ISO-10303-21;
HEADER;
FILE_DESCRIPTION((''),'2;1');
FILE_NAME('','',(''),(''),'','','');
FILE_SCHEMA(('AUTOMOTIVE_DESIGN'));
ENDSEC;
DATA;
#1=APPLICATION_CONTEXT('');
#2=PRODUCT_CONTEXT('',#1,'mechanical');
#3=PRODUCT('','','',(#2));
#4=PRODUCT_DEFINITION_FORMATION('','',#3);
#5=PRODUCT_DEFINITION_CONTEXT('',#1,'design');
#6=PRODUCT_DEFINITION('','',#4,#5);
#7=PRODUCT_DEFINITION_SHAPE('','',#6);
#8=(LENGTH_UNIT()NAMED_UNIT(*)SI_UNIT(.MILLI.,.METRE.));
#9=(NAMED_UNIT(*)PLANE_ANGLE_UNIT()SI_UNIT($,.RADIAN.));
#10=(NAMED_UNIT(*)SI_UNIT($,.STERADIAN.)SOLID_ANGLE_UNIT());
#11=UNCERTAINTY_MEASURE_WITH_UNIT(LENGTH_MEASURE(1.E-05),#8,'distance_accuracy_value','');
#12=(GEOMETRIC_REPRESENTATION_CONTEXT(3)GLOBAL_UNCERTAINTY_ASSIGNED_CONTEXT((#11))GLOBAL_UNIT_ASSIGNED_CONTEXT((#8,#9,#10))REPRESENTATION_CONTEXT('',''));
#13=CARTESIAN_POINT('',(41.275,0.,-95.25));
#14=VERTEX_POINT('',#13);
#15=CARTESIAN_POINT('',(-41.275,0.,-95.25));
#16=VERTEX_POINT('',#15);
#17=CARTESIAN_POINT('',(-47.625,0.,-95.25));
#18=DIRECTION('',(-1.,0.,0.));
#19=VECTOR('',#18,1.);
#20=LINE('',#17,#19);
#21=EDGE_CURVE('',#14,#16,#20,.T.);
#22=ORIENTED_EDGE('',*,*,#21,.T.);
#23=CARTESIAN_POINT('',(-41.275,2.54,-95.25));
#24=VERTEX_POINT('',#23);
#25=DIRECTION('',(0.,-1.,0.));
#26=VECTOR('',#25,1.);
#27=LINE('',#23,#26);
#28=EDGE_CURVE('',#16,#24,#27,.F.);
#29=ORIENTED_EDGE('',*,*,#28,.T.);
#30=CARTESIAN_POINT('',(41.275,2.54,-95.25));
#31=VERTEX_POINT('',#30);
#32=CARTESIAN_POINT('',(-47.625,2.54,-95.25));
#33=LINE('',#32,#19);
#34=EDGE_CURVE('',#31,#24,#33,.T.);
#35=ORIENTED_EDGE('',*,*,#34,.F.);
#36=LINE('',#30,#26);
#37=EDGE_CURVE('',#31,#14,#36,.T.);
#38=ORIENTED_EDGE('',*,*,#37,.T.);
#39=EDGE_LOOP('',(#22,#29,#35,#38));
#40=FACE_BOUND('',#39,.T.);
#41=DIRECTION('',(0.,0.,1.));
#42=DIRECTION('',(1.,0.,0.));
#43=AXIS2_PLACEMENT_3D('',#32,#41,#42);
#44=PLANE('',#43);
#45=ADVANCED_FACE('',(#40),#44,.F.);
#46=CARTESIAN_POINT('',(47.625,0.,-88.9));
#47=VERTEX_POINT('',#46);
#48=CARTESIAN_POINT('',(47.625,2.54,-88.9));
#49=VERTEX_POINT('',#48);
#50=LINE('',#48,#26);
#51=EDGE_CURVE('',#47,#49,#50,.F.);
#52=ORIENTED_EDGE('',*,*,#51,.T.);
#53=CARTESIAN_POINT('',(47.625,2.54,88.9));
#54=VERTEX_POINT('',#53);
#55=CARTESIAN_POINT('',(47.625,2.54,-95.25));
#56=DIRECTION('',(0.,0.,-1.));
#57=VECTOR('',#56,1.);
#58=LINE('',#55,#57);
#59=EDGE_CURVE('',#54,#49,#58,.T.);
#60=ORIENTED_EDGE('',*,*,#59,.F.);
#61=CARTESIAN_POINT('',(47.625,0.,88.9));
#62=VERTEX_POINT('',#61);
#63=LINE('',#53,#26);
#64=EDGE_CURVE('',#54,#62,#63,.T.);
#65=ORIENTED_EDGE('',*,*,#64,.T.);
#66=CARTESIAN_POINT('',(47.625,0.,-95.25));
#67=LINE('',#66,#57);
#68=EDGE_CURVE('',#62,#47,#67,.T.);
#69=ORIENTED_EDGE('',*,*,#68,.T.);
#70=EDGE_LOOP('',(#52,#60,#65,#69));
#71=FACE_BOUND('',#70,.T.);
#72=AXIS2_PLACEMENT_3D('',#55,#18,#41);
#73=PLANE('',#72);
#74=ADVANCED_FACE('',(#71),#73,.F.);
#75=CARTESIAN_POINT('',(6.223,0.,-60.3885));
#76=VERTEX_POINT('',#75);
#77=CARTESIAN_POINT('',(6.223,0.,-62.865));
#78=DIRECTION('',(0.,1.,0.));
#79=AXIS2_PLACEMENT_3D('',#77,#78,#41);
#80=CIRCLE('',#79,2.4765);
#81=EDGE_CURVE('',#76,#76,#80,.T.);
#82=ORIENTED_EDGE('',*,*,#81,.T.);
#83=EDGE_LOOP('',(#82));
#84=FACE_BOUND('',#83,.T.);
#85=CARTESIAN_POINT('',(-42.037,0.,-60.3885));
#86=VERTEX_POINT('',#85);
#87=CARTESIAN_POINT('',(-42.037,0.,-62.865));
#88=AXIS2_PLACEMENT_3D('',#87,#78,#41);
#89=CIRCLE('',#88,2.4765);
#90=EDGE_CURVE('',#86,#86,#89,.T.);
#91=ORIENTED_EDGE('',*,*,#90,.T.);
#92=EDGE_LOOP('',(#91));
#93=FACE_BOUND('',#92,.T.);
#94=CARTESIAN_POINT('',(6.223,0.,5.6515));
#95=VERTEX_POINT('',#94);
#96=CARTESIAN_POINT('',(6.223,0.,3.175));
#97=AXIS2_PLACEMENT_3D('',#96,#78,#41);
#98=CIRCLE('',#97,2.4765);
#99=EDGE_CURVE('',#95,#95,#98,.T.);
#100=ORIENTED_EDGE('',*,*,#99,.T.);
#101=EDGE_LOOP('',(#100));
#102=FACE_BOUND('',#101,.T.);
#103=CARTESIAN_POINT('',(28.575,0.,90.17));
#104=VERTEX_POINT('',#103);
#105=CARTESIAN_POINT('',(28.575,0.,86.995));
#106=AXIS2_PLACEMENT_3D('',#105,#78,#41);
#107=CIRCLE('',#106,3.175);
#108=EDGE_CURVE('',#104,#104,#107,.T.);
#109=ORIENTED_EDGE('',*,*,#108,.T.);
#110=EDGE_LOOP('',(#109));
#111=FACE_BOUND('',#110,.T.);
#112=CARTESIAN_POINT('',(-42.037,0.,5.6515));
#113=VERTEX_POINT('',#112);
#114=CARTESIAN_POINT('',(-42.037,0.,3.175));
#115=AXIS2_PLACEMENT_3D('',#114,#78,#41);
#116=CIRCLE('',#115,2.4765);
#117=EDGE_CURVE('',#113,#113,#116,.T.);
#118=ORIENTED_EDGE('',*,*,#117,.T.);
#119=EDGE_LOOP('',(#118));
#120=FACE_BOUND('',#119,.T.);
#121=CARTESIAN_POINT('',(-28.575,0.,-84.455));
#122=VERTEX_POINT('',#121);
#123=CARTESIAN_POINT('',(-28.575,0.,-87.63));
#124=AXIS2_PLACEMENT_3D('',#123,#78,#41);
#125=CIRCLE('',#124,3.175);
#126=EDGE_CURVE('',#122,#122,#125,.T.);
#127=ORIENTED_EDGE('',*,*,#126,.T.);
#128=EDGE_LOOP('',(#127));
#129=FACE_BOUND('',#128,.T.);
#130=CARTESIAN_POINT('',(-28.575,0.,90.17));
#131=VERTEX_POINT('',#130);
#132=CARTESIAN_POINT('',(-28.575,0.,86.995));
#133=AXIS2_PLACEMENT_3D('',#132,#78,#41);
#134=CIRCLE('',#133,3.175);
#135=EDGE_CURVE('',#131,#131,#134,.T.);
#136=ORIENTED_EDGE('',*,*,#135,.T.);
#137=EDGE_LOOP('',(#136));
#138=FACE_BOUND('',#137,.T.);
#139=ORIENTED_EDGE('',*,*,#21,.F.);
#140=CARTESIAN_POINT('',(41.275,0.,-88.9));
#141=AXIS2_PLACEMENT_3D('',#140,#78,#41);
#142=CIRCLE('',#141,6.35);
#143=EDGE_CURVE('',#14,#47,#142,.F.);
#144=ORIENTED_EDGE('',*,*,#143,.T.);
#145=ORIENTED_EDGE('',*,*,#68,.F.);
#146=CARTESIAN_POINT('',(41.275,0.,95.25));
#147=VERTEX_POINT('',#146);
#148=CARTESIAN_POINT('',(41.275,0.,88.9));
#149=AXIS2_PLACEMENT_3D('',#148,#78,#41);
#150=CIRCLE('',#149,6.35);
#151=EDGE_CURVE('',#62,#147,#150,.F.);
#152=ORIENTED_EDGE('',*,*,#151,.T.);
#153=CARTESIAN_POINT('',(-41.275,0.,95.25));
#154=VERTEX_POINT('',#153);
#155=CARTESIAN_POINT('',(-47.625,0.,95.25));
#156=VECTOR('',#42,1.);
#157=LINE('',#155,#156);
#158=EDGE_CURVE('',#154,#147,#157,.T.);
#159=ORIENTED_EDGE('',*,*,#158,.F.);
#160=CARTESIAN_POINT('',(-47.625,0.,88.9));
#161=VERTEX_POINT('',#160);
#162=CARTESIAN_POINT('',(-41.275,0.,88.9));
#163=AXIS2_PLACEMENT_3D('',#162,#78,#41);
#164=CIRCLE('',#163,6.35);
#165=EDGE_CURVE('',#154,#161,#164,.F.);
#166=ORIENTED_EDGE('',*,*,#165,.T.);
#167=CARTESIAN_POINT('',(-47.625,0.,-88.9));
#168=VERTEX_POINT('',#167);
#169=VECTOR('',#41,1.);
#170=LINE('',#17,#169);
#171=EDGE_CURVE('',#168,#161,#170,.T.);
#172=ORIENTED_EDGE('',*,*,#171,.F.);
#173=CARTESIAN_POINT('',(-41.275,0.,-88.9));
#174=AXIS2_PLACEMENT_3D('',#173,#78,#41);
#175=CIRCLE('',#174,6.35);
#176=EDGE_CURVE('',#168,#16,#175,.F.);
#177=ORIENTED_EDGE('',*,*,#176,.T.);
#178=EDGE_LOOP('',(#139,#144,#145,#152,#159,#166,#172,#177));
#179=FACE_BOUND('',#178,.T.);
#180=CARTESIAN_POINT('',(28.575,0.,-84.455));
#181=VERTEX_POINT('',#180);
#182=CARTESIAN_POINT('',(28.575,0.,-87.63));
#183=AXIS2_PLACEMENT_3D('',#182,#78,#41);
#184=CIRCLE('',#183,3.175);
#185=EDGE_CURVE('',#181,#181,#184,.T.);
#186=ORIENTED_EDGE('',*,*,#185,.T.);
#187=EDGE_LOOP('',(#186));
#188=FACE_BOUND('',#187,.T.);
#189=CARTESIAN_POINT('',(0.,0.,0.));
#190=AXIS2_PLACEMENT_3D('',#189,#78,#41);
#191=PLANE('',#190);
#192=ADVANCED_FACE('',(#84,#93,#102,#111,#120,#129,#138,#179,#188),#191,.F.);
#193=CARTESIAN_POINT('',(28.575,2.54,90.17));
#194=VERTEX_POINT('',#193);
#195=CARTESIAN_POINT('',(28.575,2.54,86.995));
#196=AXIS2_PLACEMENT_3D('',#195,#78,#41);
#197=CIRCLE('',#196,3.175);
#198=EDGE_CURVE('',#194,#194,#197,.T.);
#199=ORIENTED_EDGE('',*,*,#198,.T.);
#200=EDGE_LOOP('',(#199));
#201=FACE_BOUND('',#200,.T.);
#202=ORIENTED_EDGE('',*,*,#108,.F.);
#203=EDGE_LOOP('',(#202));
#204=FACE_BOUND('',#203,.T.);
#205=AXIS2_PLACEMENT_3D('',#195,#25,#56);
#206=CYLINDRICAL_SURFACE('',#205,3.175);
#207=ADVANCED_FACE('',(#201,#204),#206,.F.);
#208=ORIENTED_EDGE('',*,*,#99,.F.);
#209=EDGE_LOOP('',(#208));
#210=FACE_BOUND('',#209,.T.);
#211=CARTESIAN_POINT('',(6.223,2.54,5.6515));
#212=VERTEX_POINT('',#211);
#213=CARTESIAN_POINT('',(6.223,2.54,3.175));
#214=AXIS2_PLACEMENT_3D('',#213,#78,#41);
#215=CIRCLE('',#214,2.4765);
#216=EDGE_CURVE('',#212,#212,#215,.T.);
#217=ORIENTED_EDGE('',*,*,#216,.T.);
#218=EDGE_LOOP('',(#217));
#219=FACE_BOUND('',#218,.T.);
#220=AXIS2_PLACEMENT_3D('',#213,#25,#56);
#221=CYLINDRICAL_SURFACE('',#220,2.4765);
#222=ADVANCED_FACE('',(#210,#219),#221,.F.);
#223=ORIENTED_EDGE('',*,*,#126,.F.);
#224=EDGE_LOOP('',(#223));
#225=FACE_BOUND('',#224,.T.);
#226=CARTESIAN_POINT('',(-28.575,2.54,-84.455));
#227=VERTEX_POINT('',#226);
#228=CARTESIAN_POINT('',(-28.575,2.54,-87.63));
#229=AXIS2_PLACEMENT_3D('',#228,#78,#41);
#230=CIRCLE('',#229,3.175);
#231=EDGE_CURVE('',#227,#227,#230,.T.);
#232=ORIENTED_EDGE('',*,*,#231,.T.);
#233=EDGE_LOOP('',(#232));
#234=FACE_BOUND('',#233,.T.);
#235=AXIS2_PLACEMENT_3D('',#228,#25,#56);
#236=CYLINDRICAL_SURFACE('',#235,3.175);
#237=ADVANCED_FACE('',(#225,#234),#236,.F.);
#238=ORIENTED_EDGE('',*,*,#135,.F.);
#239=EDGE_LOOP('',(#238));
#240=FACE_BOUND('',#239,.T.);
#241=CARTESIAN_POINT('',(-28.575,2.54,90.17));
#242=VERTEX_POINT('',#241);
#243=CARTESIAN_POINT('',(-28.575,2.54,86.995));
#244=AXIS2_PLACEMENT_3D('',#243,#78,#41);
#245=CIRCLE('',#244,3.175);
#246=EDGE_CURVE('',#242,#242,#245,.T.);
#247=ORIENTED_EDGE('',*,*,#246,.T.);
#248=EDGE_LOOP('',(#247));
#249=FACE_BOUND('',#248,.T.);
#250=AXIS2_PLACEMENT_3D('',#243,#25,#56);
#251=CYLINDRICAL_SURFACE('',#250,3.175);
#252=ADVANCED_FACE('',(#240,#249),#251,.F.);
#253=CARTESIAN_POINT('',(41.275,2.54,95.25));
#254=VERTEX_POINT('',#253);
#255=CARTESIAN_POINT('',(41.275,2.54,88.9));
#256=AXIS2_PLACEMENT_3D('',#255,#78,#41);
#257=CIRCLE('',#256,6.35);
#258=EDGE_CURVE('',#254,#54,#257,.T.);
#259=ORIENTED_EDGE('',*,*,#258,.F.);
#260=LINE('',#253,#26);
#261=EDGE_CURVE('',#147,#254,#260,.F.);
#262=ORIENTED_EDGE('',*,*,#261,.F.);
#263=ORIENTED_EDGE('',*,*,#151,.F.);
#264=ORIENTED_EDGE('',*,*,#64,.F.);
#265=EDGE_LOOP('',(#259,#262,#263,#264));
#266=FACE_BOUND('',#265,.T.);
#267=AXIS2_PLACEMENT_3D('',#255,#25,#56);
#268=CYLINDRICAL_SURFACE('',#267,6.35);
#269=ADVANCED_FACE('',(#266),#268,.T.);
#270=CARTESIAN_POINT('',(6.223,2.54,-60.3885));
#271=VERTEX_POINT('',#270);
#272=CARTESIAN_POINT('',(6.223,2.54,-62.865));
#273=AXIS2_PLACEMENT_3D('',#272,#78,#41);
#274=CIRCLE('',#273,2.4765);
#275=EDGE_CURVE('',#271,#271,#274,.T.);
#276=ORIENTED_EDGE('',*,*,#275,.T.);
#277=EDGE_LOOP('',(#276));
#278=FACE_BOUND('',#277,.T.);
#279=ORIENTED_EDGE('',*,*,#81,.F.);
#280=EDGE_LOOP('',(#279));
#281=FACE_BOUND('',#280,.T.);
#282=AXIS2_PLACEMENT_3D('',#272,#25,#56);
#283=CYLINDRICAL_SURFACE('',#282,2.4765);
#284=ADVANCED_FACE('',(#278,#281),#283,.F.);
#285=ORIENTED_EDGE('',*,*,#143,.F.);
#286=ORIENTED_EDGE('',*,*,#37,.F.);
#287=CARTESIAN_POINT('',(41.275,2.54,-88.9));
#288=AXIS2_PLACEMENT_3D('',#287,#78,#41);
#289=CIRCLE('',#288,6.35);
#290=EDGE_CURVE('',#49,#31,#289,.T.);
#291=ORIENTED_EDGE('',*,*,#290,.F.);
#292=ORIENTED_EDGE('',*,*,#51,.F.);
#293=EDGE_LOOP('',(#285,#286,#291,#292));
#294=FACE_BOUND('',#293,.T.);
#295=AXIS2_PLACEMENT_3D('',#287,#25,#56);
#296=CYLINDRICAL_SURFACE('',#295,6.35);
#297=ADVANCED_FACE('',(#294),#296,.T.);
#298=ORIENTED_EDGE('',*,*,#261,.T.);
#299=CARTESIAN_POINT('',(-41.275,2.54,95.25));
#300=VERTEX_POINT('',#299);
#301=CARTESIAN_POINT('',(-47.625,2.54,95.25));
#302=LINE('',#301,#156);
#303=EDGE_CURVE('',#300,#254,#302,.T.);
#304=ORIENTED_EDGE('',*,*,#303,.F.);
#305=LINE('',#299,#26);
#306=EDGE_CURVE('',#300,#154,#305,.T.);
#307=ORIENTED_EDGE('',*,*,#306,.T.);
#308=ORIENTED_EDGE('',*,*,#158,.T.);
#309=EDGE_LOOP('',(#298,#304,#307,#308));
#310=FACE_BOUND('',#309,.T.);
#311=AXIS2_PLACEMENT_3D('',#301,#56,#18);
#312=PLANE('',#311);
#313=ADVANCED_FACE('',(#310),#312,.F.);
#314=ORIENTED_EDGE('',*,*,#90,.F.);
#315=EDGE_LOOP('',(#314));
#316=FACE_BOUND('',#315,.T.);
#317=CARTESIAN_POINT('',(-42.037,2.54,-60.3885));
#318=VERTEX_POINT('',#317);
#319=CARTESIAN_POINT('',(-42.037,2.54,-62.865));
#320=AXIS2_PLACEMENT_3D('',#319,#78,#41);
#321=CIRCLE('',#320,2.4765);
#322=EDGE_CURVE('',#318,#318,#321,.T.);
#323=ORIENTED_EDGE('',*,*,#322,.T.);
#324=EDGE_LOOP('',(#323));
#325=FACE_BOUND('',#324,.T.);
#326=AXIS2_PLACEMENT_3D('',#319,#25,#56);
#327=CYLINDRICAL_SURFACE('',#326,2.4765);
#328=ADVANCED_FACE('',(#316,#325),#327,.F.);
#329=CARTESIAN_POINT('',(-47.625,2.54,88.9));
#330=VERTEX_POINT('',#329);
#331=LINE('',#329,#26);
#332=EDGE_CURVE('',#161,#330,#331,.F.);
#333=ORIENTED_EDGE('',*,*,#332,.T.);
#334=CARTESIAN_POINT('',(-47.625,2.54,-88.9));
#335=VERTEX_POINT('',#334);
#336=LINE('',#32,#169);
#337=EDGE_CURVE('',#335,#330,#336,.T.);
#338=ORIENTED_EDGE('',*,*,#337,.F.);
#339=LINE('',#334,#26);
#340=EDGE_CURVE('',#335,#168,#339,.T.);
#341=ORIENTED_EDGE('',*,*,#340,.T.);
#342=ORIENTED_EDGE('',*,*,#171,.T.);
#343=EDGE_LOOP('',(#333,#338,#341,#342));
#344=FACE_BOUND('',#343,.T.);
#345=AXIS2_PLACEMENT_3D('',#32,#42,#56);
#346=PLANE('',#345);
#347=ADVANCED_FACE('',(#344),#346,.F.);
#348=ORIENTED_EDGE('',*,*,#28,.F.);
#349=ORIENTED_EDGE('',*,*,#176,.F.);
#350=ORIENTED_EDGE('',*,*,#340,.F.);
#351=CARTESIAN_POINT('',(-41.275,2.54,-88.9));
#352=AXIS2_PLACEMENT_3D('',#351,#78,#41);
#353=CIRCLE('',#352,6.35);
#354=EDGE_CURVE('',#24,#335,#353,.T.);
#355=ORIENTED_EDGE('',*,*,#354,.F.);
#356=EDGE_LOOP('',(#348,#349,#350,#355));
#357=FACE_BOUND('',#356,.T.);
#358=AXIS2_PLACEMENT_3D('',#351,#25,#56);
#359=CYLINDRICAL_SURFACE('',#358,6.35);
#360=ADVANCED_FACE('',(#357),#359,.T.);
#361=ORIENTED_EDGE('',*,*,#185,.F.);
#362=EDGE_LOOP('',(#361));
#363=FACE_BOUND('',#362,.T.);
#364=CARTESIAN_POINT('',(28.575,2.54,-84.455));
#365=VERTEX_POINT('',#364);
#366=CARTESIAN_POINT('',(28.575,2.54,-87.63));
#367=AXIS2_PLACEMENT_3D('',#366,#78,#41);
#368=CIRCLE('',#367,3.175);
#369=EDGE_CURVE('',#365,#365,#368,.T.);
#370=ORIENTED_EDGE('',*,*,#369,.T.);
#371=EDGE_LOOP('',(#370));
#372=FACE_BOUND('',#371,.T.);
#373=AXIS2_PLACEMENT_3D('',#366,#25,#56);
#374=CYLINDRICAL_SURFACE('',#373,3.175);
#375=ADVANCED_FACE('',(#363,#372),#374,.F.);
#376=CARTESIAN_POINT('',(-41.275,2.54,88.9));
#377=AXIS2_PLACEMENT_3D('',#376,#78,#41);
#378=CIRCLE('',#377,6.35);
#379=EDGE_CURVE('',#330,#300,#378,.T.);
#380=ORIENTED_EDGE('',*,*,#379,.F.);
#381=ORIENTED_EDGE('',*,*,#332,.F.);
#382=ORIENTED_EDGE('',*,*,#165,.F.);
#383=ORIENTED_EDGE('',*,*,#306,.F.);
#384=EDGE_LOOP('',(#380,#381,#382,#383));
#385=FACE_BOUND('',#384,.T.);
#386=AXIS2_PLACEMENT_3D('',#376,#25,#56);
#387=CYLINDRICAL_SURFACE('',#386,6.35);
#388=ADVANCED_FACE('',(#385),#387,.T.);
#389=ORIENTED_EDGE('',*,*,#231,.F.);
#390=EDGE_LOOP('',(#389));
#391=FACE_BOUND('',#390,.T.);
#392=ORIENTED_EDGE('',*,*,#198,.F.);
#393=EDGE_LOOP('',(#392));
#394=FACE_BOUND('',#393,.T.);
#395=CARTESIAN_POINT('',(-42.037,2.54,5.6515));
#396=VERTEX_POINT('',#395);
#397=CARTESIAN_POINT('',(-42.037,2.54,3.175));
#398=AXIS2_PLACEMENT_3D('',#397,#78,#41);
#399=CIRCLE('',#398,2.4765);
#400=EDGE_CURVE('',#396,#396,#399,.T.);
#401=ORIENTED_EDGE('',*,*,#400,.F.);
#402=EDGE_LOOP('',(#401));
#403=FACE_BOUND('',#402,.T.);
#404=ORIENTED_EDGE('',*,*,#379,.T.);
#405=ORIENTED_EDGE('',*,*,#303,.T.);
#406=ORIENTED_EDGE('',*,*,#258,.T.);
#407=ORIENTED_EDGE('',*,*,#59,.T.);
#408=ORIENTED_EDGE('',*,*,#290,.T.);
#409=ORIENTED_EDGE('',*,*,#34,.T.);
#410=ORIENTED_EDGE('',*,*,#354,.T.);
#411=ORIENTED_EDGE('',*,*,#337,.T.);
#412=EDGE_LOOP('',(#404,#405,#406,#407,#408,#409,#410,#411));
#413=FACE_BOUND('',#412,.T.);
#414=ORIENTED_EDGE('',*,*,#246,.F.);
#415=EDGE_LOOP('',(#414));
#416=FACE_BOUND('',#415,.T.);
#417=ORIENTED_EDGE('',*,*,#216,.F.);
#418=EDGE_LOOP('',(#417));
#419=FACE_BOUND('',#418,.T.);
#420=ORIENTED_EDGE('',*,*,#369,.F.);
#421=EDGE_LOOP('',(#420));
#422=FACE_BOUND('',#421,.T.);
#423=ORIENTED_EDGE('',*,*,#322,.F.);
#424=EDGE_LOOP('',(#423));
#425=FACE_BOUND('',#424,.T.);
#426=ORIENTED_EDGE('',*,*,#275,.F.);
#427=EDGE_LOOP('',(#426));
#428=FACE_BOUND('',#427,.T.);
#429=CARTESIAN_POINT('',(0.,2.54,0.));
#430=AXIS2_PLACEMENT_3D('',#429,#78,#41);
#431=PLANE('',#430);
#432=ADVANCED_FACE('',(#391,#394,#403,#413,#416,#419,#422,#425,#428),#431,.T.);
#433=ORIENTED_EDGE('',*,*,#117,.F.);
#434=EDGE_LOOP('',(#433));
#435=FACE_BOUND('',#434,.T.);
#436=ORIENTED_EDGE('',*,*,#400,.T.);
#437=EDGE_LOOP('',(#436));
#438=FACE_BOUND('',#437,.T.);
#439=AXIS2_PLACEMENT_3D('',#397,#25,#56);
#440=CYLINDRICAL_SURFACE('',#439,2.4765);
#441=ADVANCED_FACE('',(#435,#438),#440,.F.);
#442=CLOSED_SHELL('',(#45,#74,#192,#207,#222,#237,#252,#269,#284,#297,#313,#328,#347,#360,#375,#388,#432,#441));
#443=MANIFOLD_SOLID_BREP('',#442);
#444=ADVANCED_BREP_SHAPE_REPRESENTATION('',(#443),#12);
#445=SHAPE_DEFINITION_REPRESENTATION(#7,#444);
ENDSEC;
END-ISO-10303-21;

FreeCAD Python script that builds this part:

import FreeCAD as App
import Part
import Sketcher
Q = App.Units.Quantity


def edges_at(feature, points):
    """Names of the edges that pass closest to the given points."""
    edges = feature.Shape.Edges
    near = lambda p: min(range(len(edges)), key=lambda i: edges[i].distToShape(Part.Vertex(*p))[0])
    return sorted({f"Edge{near(p) + 1}" for p in points})


def add_polygon(sketch, points):
    """Adds a closed chain of lines whose ends are joined by coincident constraints."""
    first, n = sketch.GeometryCount, len(points)
    for a, b in zip(points, points[1:] + points[:1]):
        sketch.addGeometry(Part.LineSegment(App.Vector(*a, 0), App.Vector(*b, 0)), False)
    for i in range(n):
        sketch.addConstraint(Sketcher.Constraint("Coincident", first + i, 2, first + (i + 1) % n, 1))

doc = App.newDocument("Part")
params = doc.addObject("Spreadsheet::Sheet", "Params")
for row, (alias, value) in enumerate([
    ("sketch1_diameter", "0.25 in"),
    ("sketch1_diameter2", "0.195 in"),
    ("sketch1_height", "7.5 in"),
    ("sketch1_width", "3.75 in"),
    ("pad1_length", "0.1 in"),
    ("fillet_radius", "0.25 in"),
], start=1):
    params.set(f"A{row}", alias)
    params.set(f"B{row}", "=" + value)
    params.setAlias(f"B{row}", alias)

body = doc.addObject("PartDesign::Body", "Body")

sketch1 = body.newObject("Sketcher::SketchObject", "Sketch")
sketch1.AttachmentSupport = (doc.getObject("XZ_Plane"), [""])
sketch1.MapMode = "FlatFace"
add_polygon(sketch1, [(-47.6, -95.2), (-47.6, 95.2), (47.6, 95.2), (47.6, -95.2)])
sketch1.addGeometry(Part.Circle(App.Vector(-28.6, 87, 0), App.Vector(0, 0, 1), 3.2), False)
sketch1.addGeometry(Part.Circle(App.Vector(-42, 3.2, 0), App.Vector(0, 0, 1), 2.5), False)
sketch1.addGeometry(Part.Circle(App.Vector(28.6, 87, 0), App.Vector(0, 0, 1), 3.2), False)
sketch1.addGeometry(Part.Circle(App.Vector(6.2, 3.2, 0), App.Vector(0, 0, 1), 2.5), False)
sketch1.addGeometry(Part.Circle(App.Vector(-42, -62.9, 0), App.Vector(0, 0, 1), 2.5), False)
sketch1.addGeometry(Part.Circle(App.Vector(-28.6, -87.6, 0), App.Vector(0, 0, 1), 3.2), False)
sketch1.addGeometry(Part.Circle(App.Vector(6.2, -62.9, 0), App.Vector(0, 0, 1), 2.5), False)
sketch1.addGeometry(Part.Circle(App.Vector(28.6, -87.6, 0), App.Vector(0, 0, 1), 3.2), False)
sketch1.addConstraint([
    Sketcher.Constraint("Vertical", 0),
    Sketcher.Constraint("Horizontal", 1),
    Sketcher.Constraint("Vertical", 2),
    Sketcher.Constraint("Horizontal", 3),
    Sketcher.Constraint("Equal", 4, 6),
    Sketcher.Constraint("Equal", 5, 7),
    Sketcher.Constraint("Equal", 7, 8),
    Sketcher.Constraint("Equal", 6, 9),
    Sketcher.Constraint("Equal", 8, 10),
    Sketcher.Constraint("Equal", 9, 11),
    Sketcher.Constraint("Symmetric", 0, 2, 2, 2, -1, 1),
    Sketcher.Constraint("Symmetric", 4, 3, 6, 3, -2),
    Sketcher.Constraint("Symmetric", 9, 3, 11, 3, -2),
    Sketcher.Constraint("Horizontal", 5, 3, 7, 3),
    Sketcher.Constraint("Horizontal", 8, 3, 10, 3),
    Sketcher.Constraint("Vertical", 5, 3, 8, 3),
    Sketcher.Constraint("Vertical", 4, 3, 9, 3),
    Sketcher.Constraint("Vertical", 7, 3, 10, 3),
    Sketcher.Constraint("Diameter", 4, Q("0.25 in")),
    Sketcher.Constraint("Diameter", 5, Q("0.195 in")),
    Sketcher.Constraint("DistanceY", 0, 1, 0, 2, Q("7.5 in")),
    Sketcher.Constraint("DistanceX", 0, 2, 6, 3, Q("3 in")),
    Sketcher.Constraint("DistanceX", 1, 1, 1, 2, Q("3.75 in")),
    Sketcher.Constraint("DistanceY", 5, 3, 4, 3, Q("3.3 in")),
    Sketcher.Constraint("DistanceX", 5, 3, 7, 3, Q("1.9 in")),
    Sketcher.Constraint("DistanceY", 8, 3, 5, 3, Q("2.6 in")),
    Sketcher.Constraint("DistanceY", 2, 2, 11, 3, Q("0.3 in")),
    Sketcher.Constraint("DistanceX", 5, 3, 4, 3, Q("0.53 in")),
    Sketcher.Constraint("DistanceY", -1, 1, 4, 3, Q("3.425 in")),
])
sketch1.setExpression("Constraints[22]", "Params.sketch1_diameter")
sketch1.setExpression("Constraints[23]", "Params.sketch1_diameter2")
sketch1.setExpression("Constraints[24]", "Params.sketch1_height")
sketch1.setExpression("Constraints[26]", "Params.sketch1_width")
pad1 = body.newObject("PartDesign::Pad", "Pad")
pad1.Profile = sketch1
pad1.setExpression("Length", "Params.pad1_length")
pad1.Reversed = True
doc.recompute()

fillet = body.newObject("PartDesign::Fillet", "Fillet")
fillet.Base = (pad1, edges_at(pad1, [
    (47.625, 1.27, 95.25),
    (-47.625, 1.27, 95.25),
    (-47.625, 1.27, -95.25),
    (47.625, 1.27, -95.25),
]))
fillet.setExpression("Radius", "Params.fillet_radius")

doc.recompute()
